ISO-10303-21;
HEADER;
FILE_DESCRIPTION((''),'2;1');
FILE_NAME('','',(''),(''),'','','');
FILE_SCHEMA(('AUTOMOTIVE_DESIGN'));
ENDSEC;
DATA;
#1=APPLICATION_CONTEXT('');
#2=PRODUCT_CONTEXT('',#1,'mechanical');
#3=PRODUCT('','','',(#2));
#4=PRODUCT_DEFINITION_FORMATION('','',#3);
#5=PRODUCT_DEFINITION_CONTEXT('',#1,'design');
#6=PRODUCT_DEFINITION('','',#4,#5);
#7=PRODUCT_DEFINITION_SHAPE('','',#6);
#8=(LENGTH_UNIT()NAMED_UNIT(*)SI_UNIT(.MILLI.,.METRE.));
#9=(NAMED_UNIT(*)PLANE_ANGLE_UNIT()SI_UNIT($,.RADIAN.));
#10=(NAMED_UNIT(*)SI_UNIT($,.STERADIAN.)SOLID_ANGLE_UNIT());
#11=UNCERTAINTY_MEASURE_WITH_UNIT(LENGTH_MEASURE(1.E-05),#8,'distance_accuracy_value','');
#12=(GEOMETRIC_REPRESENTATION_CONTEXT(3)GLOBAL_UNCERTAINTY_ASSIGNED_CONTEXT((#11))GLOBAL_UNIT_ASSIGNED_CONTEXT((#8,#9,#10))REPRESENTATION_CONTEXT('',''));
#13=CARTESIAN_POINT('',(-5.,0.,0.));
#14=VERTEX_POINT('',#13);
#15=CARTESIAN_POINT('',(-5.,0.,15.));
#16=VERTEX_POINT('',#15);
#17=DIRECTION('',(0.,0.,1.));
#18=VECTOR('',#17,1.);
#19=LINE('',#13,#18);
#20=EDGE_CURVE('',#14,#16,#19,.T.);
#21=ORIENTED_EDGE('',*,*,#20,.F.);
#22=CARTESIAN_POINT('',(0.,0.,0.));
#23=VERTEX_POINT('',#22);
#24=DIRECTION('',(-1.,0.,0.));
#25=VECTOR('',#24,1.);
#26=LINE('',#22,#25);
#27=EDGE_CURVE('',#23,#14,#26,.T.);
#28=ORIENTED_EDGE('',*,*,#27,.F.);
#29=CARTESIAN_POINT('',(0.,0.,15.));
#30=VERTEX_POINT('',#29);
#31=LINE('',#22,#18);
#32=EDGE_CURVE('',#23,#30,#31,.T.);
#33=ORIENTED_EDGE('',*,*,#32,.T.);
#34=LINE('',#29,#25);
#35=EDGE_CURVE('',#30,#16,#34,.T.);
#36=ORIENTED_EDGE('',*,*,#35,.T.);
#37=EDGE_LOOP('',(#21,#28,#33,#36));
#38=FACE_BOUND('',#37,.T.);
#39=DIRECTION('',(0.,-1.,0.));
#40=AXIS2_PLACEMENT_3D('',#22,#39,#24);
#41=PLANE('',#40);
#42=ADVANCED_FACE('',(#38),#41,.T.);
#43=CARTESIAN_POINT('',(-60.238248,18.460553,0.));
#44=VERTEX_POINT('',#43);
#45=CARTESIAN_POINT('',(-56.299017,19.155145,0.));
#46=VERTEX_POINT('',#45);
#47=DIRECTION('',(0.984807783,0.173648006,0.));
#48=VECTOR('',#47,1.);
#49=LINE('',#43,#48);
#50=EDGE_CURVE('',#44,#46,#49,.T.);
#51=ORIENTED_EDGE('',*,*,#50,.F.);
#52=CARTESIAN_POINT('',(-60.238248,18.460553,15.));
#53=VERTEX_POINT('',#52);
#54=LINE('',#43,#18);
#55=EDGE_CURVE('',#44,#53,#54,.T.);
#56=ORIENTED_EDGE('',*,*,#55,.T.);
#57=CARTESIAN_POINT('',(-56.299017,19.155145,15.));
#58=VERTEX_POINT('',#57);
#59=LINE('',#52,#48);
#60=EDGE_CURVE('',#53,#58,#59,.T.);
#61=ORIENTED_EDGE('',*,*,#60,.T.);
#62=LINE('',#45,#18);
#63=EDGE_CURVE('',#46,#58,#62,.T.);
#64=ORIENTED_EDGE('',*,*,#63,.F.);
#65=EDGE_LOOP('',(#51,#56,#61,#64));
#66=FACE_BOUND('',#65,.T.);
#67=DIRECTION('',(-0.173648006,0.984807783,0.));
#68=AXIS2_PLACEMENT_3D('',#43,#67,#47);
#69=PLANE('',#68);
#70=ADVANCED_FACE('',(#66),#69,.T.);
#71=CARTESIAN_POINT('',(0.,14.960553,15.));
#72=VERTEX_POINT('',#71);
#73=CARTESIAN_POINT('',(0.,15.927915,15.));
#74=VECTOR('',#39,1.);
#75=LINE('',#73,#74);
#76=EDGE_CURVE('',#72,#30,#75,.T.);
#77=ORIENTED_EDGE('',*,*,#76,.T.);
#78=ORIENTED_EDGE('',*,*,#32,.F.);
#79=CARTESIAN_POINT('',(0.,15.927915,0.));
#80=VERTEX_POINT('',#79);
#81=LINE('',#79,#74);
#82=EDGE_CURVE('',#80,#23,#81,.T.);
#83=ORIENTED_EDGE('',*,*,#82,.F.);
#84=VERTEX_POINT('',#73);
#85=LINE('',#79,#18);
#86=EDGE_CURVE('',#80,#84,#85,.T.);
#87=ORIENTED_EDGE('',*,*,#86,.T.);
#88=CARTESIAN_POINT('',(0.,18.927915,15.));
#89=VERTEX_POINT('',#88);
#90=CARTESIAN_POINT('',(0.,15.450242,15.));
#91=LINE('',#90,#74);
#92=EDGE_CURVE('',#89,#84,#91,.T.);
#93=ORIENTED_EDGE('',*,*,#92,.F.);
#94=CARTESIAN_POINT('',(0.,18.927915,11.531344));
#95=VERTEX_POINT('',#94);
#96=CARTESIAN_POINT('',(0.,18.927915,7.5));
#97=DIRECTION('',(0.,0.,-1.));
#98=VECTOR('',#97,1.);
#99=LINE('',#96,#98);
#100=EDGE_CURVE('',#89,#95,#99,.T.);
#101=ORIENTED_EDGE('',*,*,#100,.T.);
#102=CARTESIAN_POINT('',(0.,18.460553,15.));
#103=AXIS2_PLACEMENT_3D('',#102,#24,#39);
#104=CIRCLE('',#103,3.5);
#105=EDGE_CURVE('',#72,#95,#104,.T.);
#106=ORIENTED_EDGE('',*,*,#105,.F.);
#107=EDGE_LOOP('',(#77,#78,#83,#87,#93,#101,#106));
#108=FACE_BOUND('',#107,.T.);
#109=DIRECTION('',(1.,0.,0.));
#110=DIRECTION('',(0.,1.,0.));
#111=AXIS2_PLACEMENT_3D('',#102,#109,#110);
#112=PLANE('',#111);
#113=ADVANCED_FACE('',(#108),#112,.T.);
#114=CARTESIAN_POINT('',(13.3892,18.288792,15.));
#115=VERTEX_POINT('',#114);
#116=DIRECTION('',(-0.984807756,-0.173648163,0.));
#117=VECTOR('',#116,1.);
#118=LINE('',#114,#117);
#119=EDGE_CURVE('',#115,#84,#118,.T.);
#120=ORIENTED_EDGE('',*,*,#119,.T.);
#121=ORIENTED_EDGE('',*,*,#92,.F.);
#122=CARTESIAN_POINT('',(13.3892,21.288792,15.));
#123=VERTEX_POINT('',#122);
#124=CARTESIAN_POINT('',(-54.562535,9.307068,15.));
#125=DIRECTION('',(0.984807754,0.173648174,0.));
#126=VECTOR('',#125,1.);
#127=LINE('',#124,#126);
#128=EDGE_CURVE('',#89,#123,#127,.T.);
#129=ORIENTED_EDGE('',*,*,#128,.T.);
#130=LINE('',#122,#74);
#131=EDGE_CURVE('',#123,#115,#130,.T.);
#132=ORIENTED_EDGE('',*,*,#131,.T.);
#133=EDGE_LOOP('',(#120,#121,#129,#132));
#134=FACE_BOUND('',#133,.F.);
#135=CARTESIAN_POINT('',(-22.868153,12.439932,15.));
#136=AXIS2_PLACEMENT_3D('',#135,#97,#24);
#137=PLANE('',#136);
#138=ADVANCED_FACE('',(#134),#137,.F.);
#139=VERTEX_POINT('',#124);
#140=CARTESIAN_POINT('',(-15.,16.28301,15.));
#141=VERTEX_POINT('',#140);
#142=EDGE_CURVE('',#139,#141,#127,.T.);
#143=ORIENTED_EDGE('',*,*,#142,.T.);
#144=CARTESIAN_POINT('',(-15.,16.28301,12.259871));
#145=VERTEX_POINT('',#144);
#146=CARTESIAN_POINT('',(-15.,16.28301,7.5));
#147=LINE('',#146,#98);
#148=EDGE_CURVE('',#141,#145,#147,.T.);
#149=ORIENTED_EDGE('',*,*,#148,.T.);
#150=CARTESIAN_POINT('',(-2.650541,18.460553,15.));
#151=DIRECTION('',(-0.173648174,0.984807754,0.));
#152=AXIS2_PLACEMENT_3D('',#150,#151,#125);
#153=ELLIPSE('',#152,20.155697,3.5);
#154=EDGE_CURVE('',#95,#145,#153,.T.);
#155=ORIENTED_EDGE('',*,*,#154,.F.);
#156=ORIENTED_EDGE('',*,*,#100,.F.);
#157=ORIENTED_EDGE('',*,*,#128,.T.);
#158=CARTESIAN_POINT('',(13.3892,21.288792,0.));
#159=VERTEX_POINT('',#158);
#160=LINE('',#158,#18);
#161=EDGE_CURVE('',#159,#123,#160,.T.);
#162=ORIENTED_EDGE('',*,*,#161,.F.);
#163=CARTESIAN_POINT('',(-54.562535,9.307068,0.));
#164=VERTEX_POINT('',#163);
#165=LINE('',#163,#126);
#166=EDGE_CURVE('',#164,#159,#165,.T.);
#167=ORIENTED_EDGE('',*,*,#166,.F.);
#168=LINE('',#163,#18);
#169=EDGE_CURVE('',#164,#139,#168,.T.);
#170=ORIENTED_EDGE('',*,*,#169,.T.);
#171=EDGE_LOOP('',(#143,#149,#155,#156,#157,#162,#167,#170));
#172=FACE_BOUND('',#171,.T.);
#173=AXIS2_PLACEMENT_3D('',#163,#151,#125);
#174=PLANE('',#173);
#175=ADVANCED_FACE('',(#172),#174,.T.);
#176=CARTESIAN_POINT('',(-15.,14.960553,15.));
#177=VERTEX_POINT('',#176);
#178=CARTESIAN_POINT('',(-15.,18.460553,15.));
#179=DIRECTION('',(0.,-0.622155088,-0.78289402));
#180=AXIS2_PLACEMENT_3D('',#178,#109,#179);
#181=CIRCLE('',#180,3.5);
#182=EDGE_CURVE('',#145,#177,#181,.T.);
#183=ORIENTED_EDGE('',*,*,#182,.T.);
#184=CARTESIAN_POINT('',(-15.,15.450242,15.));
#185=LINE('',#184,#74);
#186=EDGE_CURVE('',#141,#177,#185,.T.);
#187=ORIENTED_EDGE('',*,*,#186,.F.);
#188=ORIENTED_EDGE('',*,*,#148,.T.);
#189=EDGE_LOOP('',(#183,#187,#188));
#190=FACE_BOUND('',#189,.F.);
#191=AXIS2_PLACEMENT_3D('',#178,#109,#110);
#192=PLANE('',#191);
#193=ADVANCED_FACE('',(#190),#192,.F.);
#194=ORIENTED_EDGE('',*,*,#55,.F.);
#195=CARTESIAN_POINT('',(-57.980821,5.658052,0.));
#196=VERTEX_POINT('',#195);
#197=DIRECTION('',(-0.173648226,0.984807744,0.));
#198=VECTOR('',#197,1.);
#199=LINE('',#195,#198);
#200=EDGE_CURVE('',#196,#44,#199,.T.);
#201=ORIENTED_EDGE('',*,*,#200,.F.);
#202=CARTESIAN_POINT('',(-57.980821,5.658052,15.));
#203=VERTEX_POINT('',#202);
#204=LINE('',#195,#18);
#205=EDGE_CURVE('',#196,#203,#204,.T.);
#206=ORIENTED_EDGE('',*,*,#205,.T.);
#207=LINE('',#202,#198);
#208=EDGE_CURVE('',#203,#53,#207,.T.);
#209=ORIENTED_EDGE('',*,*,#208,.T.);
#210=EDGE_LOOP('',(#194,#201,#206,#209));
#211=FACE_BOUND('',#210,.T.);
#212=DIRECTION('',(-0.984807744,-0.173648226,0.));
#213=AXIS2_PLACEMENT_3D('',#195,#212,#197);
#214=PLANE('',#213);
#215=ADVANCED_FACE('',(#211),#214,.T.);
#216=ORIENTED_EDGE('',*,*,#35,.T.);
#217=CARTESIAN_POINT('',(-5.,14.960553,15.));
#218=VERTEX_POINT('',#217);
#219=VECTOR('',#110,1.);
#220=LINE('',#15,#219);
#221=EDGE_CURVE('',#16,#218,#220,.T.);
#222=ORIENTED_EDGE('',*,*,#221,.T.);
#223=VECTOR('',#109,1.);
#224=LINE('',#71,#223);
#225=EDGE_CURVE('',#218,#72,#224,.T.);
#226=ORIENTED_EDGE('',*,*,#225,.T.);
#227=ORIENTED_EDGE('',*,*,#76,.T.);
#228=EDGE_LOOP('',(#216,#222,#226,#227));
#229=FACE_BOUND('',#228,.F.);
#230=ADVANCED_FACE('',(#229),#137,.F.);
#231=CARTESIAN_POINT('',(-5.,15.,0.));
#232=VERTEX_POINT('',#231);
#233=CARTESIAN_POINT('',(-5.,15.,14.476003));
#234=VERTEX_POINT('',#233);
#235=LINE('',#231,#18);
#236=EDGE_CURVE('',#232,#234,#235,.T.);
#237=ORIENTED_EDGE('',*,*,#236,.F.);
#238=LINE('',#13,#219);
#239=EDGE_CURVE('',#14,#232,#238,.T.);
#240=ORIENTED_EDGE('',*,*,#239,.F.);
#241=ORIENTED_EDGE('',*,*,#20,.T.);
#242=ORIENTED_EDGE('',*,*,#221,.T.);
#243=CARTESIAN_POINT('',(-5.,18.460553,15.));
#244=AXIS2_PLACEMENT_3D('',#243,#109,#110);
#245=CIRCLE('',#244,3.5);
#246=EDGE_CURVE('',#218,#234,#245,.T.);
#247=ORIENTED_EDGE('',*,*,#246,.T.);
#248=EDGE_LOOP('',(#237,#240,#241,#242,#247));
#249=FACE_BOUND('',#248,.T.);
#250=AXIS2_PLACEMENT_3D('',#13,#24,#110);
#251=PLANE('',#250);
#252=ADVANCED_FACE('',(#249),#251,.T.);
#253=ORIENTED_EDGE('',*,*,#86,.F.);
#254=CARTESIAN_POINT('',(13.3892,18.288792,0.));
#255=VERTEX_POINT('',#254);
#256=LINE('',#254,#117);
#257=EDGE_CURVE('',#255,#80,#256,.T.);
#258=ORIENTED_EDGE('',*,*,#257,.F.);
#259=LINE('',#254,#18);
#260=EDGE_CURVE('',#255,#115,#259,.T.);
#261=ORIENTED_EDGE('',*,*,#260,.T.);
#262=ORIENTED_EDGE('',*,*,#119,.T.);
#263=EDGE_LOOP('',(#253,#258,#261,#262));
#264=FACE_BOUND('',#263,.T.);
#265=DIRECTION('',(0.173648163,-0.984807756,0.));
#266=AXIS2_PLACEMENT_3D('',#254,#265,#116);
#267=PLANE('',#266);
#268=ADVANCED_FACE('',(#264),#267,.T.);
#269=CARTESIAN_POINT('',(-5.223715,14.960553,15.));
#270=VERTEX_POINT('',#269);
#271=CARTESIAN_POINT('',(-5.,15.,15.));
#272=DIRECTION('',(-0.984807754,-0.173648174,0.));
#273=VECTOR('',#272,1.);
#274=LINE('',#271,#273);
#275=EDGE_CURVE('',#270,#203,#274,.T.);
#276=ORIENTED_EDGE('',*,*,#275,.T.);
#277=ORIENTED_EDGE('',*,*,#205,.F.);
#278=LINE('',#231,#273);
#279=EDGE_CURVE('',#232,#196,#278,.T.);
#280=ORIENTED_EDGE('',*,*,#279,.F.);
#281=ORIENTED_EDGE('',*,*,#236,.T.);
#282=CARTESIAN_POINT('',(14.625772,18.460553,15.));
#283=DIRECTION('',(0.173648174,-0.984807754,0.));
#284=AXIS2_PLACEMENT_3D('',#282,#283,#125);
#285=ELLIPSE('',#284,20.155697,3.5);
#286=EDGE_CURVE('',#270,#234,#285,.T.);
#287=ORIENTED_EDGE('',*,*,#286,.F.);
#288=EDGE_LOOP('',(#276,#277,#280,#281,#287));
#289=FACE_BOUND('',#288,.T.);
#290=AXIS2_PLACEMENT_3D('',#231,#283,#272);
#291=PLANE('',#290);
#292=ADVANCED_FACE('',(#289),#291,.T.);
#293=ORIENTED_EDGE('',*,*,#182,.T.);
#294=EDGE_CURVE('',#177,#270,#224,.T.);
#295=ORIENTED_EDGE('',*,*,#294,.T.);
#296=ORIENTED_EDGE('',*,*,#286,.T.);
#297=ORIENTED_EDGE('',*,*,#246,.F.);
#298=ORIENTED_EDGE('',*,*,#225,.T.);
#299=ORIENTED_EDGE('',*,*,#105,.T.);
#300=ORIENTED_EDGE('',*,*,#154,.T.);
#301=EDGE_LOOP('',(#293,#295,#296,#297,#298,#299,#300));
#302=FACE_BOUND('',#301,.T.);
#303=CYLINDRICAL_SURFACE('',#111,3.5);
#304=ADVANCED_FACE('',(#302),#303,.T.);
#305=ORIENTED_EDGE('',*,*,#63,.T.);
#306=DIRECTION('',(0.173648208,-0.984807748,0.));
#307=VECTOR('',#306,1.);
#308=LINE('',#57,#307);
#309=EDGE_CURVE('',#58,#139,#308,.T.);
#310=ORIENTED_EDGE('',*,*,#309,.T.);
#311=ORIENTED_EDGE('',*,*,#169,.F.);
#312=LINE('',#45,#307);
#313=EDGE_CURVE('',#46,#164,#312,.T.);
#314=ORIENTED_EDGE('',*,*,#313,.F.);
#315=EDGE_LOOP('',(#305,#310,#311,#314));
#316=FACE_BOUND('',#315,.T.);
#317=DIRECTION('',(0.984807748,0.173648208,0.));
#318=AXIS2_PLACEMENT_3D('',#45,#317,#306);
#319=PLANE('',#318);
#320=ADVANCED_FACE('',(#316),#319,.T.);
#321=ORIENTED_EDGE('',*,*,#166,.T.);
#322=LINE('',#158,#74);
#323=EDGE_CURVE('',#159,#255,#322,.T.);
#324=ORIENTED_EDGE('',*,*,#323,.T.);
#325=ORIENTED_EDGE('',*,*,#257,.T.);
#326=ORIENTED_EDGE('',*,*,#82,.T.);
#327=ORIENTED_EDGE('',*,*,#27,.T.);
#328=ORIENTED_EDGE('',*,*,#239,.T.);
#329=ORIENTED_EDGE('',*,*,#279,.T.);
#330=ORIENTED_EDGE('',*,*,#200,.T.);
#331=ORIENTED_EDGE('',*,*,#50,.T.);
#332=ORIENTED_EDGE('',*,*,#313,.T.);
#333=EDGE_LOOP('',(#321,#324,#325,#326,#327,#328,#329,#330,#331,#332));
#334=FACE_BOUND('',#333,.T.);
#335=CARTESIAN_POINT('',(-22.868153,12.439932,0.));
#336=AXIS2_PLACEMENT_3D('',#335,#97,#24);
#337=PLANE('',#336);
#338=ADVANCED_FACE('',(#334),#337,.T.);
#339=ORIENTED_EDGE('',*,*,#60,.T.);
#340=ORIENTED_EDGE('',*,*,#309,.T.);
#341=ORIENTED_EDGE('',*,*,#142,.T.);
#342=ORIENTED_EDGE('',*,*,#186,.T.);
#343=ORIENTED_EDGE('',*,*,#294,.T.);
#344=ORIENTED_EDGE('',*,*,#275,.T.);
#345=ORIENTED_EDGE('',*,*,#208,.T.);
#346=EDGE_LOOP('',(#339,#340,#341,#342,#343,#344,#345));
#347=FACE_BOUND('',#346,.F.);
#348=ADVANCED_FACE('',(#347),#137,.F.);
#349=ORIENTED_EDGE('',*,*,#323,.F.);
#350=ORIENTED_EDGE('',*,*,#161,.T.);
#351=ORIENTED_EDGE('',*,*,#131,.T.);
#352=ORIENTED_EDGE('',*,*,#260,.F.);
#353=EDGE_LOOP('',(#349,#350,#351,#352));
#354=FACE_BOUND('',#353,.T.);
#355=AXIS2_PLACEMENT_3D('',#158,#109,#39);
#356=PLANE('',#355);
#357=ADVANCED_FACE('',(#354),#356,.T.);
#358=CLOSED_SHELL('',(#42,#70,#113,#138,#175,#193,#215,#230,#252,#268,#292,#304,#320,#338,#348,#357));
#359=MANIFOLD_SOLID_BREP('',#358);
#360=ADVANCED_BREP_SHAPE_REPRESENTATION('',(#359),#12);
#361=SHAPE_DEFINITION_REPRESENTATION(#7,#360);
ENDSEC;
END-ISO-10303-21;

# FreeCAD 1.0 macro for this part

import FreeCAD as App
import Part
import Sketcher
Q = App.Units.Quantity


def add_polygon(sketch, points):
    """Adds a closed chain of lines whose ends are joined by coincident constraints."""
    first, n = sketch.GeometryCount, len(points)
    for a, b in zip(points, points[1:] + points[:1]):
        sketch.addGeometry(Part.LineSegment(App.Vector(*a, 0), App.Vector(*b, 0)), False)
    for i in range(n):
        sketch.addConstraint(Sketcher.Constraint("Coincident", first + i, 2, first + (i + 1) % n, 1))

doc = App.newDocument("Part")
body = doc.addObject("PartDesign::Body", "Body")

# Sketch on XY plane
sketch1 = body.newObject("Sketcher::SketchObject", "Sketch")
sketch1.AttachmentSupport = (doc.getObject("XY_Plane"), [""])
sketch1.MapMode = "FlatFace"
add_polygon(sketch1, [(-5, 0), (0, 0), (0, 15.9), (13.4, 18.3), (13.4, 21.3), (-54.6, 9.3), (-56.3, 19.2), (-60.2, 18.5), (-58, 5.7), (-5, 15)])  # lines 0-9
sketch1.addConstraint([
    Sketcher.Constraint("Horizontal", 0),
    Sketcher.Constraint("Vertical", 1),
    Sketcher.Constraint("Vertical", 3),
    Sketcher.Constraint("Vertical", 9),
    Sketcher.Constraint("Coincident", 0, 2, -1, 1),
    Sketcher.Constraint("Parallel", 2, 4),
    Sketcher.Constraint("Perpendicular", 4, 5),
    Sketcher.Constraint("Perpendicular", 5, 6),
    Sketcher.Constraint("Perpendicular", 6, 7),
    Sketcher.Constraint("Perpendicular", 7, 8),
    Sketcher.Constraint("DistanceX", 0, 1, 0, 2, 5.0),
    Sketcher.Constraint("DistanceY", 3, 1, 3, 2, 3.0),
    Sketcher.Constraint("DistanceY", 9, 2, 9, 1, 15.0),
    Sketcher.Constraint("Angle", 2, Q("9.999999 deg")),
    Sketcher.Constraint("Distance", 4, 69.0),
    Sketcher.Constraint("Distance", 5, 10.0),
    Sketcher.Constraint("Distance", 6, 4.0),
    Sketcher.Constraint("Distance", 7, 13.0),
    Sketcher.Constraint("DistanceX", -1, 1, 2, 2, 13.3892),
])
pad1 = body.newObject("PartDesign::Pad", "Pad")
pad1.Profile = sketch1
pad1.Length = 15

# Sketch on YZ plane
sketch2 = body.newObject("Sketcher::SketchObject", "Sketch001")
sketch2.AttachmentSupport = (doc.getObject("YZ_Plane"), [""])
sketch2.MapMode = "FlatFace"
sketch2.addGeometry(Part.Circle(App.Vector(18.5, 15, 0), App.Vector(0, 0, 1), 3.5), False)
sketch2.addConstraint([
    Sketcher.Constraint("Diameter", 0, 7.0),
    Sketcher.Constraint("DistanceY", -1, 1, 0, 3, 15.0),
    Sketcher.Constraint("DistanceX", -1, 1, 0, 3, 18.460553),
])
pad2 = body.newObject("PartDesign::Pad", "Pad001")
pad2.Profile = sketch2
pad2.Length = 15
pad2.Reversed = True

doc.recompute()
